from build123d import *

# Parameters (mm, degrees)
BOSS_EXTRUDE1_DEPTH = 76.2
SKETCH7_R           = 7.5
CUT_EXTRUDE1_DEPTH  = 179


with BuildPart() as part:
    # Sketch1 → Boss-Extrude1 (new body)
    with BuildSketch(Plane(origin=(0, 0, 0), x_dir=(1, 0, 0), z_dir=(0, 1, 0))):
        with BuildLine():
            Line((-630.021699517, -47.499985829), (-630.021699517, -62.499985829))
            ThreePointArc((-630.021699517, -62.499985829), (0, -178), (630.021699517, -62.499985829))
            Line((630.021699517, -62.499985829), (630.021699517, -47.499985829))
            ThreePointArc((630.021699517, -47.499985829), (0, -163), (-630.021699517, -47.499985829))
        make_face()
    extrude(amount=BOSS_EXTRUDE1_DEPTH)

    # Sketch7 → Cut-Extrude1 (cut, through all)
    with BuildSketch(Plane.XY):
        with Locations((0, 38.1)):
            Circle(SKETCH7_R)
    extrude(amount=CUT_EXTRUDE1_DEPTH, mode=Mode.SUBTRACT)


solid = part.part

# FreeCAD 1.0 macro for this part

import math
import FreeCAD as App
import Part
import Sketcher
from FreeCAD import Vector

doc = App.newDocument("Part")
body = doc.addObject("PartDesign::Body", "Body")

sketch1 = body.newObject("Sketcher::SketchObject", "Sketch")
sketch1.AttachmentSupport = (doc.getObject("XZ_Plane"), [""])
sketch1.MapMode = "FlatFace"
sketch1.addGeometry([
    Part.LineSegment(Vector(-630, 47, 0), Vector(-630, 62, 0)),
    Part.ArcOfCircle(Part.Circle(Vector(0, -1598, 0), Vector(0, 0, 1), 1776), math.radians(69), math.radians(111)),
    Part.LineSegment(Vector(630, 62, 0), Vector(630, 47, 0)),
    Part.ArcOfCircle(Part.Circle(Vector(0, -1613, 0), Vector(0, 0, 1), 1776), math.radians(69), math.radians(111)),
], False)
sketch1.addConstraint([
    Sketcher.Constraint("Coincident", 0, 2, 1, 2),
    Sketcher.Constraint("Coincident", 1, 1, 2, 1),
    Sketcher.Constraint("Coincident", 2, 2, 3, 1),
    Sketcher.Constraint("Coincident", 3, 2, 0, 1),
    Sketcher.Constraint("Vertical", 0),
    Sketcher.Constraint("Vertical", 2),
    Sketcher.Constraint("Equal", 1, 3),
    Sketcher.Constraint("PointOnObject", 1, 3, -2),
    Sketcher.Constraint("PointOnObject", 3, 3, -2),
    Sketcher.Constraint("DistanceY", 0, 1, 0, 2, 15.0),
    Sketcher.Constraint("DistanceY", 2, 2, 0, 2, 15.0),
    Sketcher.Constraint("Radius", 1, 1776.049977),
    Sketcher.Constraint("DistanceX", 0, 2, -1, 1, 630.0217),
    Sketcher.Constraint("DistanceY", 1, 3, -1, 1, 1598.049977),
])
pad1 = body.newObject("PartDesign::Pad", "Pad")
pad1.Profile = sketch1
pad1.Length = 76.2
pad1.Reversed = True

sketch2 = body.newObject("Sketcher::SketchObject", "Sketch001")
sketch2.AttachmentSupport = (doc.getObject("XY_Plane"), [""])
sketch2.MapMode = "FlatFace"
sketch2.addGeometry(Part.Circle(Vector(0, 38, 0), Vector(0, 0, 1), 8), False)
sketch2.addConstraint([
    Sketcher.Constraint("PointOnObject", 0, 3, -2),
    Sketcher.Constraint("Diameter", 0, 15.0),
    Sketcher.Constraint("DistanceY", -1, 1, 0, 3, 38.1),
])
pocket1 = body.newObject("PartDesign::Pocket", "Pocket")
pocket1.Profile = sketch2
pocket1.Type = "ThroughAll"
pocket1.Reversed = True

doc.recompute()
